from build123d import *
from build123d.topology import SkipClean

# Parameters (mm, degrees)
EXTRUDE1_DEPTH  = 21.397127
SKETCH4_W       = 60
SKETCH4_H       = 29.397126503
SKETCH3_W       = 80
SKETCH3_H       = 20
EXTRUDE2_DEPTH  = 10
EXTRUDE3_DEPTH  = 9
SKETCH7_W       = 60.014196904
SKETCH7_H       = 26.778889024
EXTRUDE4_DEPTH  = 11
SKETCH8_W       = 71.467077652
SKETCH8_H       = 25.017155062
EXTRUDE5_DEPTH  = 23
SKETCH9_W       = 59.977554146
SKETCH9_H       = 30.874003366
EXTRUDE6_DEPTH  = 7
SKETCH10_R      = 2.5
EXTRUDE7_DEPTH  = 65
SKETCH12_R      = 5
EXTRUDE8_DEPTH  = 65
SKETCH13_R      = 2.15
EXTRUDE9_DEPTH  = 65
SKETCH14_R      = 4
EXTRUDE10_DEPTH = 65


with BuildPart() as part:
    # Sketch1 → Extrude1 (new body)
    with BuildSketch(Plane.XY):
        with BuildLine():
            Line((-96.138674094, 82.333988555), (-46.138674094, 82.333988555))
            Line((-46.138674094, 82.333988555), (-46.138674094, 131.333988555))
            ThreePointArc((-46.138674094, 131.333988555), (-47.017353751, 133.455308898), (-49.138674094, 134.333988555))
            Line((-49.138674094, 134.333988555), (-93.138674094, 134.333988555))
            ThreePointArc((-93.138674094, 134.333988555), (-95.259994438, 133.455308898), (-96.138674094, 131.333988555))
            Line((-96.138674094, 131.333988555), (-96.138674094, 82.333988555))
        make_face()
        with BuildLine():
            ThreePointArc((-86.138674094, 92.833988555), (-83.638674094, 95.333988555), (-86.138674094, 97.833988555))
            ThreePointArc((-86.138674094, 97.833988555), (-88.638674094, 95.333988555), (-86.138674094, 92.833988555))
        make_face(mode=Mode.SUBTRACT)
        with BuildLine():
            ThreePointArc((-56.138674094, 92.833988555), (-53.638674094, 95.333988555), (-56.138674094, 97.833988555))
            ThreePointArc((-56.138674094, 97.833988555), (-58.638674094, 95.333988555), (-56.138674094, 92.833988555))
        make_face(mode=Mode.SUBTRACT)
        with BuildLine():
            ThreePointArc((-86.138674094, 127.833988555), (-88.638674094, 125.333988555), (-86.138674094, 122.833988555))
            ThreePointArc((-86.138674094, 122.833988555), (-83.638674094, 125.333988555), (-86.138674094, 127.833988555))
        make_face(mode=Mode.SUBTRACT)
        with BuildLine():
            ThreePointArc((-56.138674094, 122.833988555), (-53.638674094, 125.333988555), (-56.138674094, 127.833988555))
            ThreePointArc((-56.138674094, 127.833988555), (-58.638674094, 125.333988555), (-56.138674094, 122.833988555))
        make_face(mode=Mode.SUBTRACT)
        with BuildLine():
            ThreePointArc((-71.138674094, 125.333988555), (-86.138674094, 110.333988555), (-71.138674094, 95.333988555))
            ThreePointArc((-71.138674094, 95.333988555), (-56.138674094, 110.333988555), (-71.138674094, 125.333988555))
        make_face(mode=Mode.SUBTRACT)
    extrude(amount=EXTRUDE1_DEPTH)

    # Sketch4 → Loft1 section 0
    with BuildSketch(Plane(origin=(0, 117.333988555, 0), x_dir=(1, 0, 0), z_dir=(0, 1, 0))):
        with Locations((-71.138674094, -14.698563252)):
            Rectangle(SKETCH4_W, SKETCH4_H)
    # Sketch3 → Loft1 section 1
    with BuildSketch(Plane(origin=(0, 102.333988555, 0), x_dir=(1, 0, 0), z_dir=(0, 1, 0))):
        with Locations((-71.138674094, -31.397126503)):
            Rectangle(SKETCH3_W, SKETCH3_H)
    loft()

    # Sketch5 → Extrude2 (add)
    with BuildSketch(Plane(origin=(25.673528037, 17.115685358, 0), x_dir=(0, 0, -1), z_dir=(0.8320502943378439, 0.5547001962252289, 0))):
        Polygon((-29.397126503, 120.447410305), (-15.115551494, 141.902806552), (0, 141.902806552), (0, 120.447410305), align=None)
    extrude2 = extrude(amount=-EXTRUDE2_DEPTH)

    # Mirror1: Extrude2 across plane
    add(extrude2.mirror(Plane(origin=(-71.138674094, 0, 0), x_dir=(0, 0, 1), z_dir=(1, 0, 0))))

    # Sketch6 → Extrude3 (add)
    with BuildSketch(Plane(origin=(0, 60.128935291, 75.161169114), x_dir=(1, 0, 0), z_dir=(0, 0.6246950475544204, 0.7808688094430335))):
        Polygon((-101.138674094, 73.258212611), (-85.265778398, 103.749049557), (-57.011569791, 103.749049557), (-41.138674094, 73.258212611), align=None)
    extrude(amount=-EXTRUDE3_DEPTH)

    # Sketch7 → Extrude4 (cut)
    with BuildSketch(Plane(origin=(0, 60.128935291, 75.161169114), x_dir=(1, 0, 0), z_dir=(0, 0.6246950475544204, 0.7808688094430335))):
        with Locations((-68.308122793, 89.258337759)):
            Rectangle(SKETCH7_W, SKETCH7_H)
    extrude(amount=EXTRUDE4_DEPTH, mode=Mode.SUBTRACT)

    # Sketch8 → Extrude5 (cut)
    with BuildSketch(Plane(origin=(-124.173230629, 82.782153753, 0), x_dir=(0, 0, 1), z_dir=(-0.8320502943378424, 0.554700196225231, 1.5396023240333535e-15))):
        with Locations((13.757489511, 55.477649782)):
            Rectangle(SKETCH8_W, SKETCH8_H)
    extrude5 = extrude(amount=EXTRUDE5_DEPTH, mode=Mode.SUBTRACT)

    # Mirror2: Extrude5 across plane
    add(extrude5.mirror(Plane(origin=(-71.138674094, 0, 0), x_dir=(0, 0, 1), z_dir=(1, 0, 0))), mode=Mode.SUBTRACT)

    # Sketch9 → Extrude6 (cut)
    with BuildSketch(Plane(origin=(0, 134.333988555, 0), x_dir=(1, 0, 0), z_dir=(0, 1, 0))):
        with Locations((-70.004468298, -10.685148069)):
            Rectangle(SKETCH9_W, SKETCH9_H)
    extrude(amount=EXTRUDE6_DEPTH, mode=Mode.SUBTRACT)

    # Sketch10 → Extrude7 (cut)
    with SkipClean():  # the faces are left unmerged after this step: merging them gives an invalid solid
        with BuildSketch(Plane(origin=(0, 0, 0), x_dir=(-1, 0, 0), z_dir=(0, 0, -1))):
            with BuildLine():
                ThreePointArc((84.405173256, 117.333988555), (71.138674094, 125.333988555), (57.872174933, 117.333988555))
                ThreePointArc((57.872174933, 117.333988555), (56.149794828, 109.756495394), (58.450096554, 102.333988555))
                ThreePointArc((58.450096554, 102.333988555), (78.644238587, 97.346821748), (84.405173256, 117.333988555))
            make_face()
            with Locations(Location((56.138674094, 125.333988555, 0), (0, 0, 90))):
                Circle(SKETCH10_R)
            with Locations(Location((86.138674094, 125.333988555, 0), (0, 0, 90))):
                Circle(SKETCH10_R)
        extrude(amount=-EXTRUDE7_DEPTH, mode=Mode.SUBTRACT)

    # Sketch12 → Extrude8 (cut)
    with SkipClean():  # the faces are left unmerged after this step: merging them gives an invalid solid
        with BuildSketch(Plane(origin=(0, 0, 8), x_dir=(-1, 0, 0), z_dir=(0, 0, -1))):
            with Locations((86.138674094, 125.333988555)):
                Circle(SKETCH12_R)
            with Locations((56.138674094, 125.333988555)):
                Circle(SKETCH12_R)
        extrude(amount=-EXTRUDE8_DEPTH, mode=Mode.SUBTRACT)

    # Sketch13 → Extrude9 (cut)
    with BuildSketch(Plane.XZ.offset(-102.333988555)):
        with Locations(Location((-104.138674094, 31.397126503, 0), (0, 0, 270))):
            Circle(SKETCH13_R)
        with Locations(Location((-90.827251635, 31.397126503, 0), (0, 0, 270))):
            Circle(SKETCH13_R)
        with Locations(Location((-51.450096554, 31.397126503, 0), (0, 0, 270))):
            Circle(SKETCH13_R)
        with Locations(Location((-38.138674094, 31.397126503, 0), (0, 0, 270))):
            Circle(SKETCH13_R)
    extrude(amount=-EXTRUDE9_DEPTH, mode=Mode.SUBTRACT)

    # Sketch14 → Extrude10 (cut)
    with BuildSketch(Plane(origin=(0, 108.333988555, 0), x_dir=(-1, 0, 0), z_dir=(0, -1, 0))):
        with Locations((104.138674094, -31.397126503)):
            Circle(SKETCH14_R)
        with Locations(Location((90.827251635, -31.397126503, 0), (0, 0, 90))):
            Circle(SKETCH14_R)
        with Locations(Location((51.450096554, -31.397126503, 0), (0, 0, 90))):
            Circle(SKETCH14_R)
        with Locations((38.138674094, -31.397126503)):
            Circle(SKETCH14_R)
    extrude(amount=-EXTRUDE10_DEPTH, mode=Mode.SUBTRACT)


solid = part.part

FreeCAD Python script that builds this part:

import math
import FreeCAD as App
import Part
import Sketcher

V = App.Vector

doc = App.newDocument("Part")
body = doc.addObject("PartDesign::Body", "Body")

# Sketch on XY plane
sketch1 = body.newObject("Sketcher::SketchObject", "Sketch")
sketch1.AttachmentSupport = (doc.getObject("XY_Plane"), [""])
sketch1.MapMode = "FlatFace"
sketch1.addGeometry(Part.LineSegment(V(-96.1, 82.3, 0), V(-46.1, 82.3, 0)), False)
sketch1.addGeometry(Part.LineSegment(V(-46.1, 82.3, 0), V(-46.1, 131.3, 0)), False)
sketch1.addGeometry(Part.ArcOfCircle(Part.Circle(V(-49.1, 131.3, 0), V(0, 0, 1), 3), math.radians(0), math.radians(90)), False)
sketch1.addGeometry(Part.LineSegment(V(-49.1, 134.3, 0), V(-93.1, 134.3, 0)), False)
sketch1.addGeometry(Part.ArcOfCircle(Part.Circle(V(-93.1, 131.3, 0), V(0, 0, 1), 3), math.radians(90), math.radians(180)), False)
sketch1.addGeometry(Part.LineSegment(V(-96.1, 131.3, 0), V(-96.1, 82.3, 0)), False)
sketch1.addGeometry(Part.Circle(V(-86.1, 95.3, 0), V(0, 0, 1), 2.5), False)
sketch1.addGeometry(Part.Circle(V(-56.1, 95.3, 0), V(0, 0, 1), 2.5), False)
sketch1.addGeometry(Part.Circle(V(-86.1, 125.3, 0), V(0, 0, 1), 2.5), False)
sketch1.addGeometry(Part.Circle(V(-71.1, 110.3, 0), V(0, 0, 1), 15), False)
sketch1.addGeometry(Part.Circle(V(-56.1, 125.3, 0), V(0, 0, 1), 2.5), False)
sketch1.addConstraint(Sketcher.Constraint("Coincident", 0, 2, 1, 1))
sketch1.addConstraint(Sketcher.Constraint("Tangent", 1, 2, 2, 1))
sketch1.addConstraint(Sketcher.Constraint("Tangent", 2, 2, 3, 1))
sketch1.addConstraint(Sketcher.Constraint("Tangent", 3, 2, 4, 1))
sketch1.addConstraint(Sketcher.Constraint("Tangent", 4, 2, 5, 1))
sketch1.addConstraint(Sketcher.Constraint("Coincident", 5, 2, 0, 1))
sketch1.addConstraint(Sketcher.Constraint("Horizontal", 0))
sketch1.addConstraint(Sketcher.Constraint("Vertical", 1))
sketch1.addConstraint(Sketcher.Constraint("Horizontal", 3))
sketch1.addConstraint(Sketcher.Constraint("Vertical", 5))
sketch1.addConstraint(Sketcher.Constraint("Equal", 2, 4))
sketch1.addConstraint(Sketcher.Constraint("Equal", 6, 7))
sketch1.addConstraint(Sketcher.Constraint("Equal", 7, 8))
sketch1.addConstraint(Sketcher.Constraint("Equal", 8, 10))
sketch1.addConstraint(Sketcher.Constraint("Horizontal", 6, 3, 7, 3))
sketch1.addConstraint(Sketcher.Constraint("Horizontal", 8, 3, 10, 3))
sketch1.addConstraint(Sketcher.Constraint("Vertical", 6, 3, 8, 3))
sketch1.addConstraint(Sketcher.Constraint("Vertical", 7, 3, 10, 3))
sketch1.addConstraint(Sketcher.Constraint("Diameter", 6, 5.0))
sketch1.addConstraint(Sketcher.Constraint("Diameter", 9, 30.0))
sketch1.addConstraint(Sketcher.Constraint("Radius", 2, 3.0))
sketch1.addConstraint(Sketcher.Constraint("DistanceX", 0, 1, 0, 2, 50.0))
sketch1.addConstraint(Sketcher.Constraint("DistanceY", 1, 1, 1, 2, 49.0))
sketch1.addConstraint(Sketcher.Constraint("DistanceX", 4, 3, 6, 3, 7.0))
sketch1.addConstraint(Sketcher.Constraint("DistanceY", 6, 3, 4, 3, 36.0))
sketch1.addConstraint(Sketcher.Constraint("DistanceX", 6, 3, 7, 3, 30.0))
sketch1.addConstraint(Sketcher.Constraint("DistanceY", 8, 3, 4, 3, 6.0))
sketch1.addConstraint(Sketcher.Constraint("DistanceX", 9, 3, 7, 3, 15.0))
sketch1.addConstraint(Sketcher.Constraint("DistanceY", 7, 3, 9, 3, 15.0))
sketch1.addConstraint(Sketcher.Constraint("DistanceY", -1, 1, 2, 3, 131.333989))
sketch1.addConstraint(Sketcher.Constraint("DistanceX", 2, 3, -1, 1, 49.138674))
pad1 = body.newObject("PartDesign::Pad", "Pad")
pad1.Profile = sketch1
pad1.Length = 21.397127

# Sketch on XZ plane
sketch2 = body.newObject("Sketcher::SketchObject", "Sketch001")
sketch2.AttachmentSupport = (doc.getObject("XZ_Plane"), [""])
sketch2.MapMode = "FlatFace"
sketch2.AttachmentOffset = App.Placement(V(0, 0, -117.333989), App.Rotation())
sketch2.addGeometry(Part.LineSegment(V(-101, 0, 0), V(-101, 29, 0)), False)
sketch2.addGeometry(Part.LineSegment(V(-101, 29, 0), V(-41, 29, 0)), False)
sketch2.addGeometry(Part.LineSegment(V(-41, 29, 0), V(-41, 0, 0)), False)
sketch2.addGeometry(Part.LineSegment(V(-41, 0, 0), V(-101, 0, 0)), False)
sketch2.addConstraint(Sketcher.Constraint("Coincident", 0, 2, 1, 1))
sketch2.addConstraint(Sketcher.Constraint("Coincident", 1, 2, 2, 1))
sketch2.addConstraint(Sketcher.Constraint("Coincident", 2, 2, 3, 1))
sketch2.addConstraint(Sketcher.Constraint("Coincident", 3, 2, 0, 1))
sketch2.addConstraint(Sketcher.Constraint("Vertical", 0))
sketch2.addConstraint(Sketcher.Constraint("Horizontal", 1))
sketch2.addConstraint(Sketcher.Constraint("Vertical", 2))
sketch2.addConstraint(Sketcher.Constraint("Horizontal", 3))
sketch2.addConstraint(Sketcher.Constraint("PointOnObject", 2, 2, -1))
sketch2.addConstraint(Sketcher.Constraint("DistanceX", 1, 1, 1, 2, 60.0))
sketch2.addConstraint(Sketcher.Constraint("DistanceY", 0, 1, 0, 2, 29.397127))
sketch2.addConstraint(Sketcher.Constraint("DistanceX", 0, 2, -1, 1, 101.138674))

# Sketch on XZ plane
sketch3 = body.newObject("Sketcher::SketchObject", "Sketch002")
sketch3.AttachmentSupport = (doc.getObject("XZ_Plane"), [""])
sketch3.MapMode = "FlatFace"
sketch3.AttachmentOffset = App.Placement(V(0, 0, -102.333989), App.Rotation())
sketch3.addGeometry(Part.LineSegment(V(-111, 21, 0), V(-111, 41, 0)), False)
sketch3.addGeometry(Part.LineSegment(V(-111, 41, 0), V(-31, 41, 0)), False)
sketch3.addGeometry(Part.LineSegment(V(-31, 41, 0), V(-31, 21, 0)), False)
sketch3.addGeometry(Part.LineSegment(V(-31, 21, 0), V(-111, 21, 0)), False)
sketch3.addConstraint(Sketcher.Constraint("Coincident", 0, 2, 1, 1))
sketch3.addConstraint(Sketcher.Constraint("Coincident", 1, 2, 2, 1))
sketch3.addConstraint(Sketcher.Constraint("Coincident", 2, 2, 3, 1))
sketch3.addConstraint(Sketcher.Constraint("Coincident", 3, 2, 0, 1))
sketch3.addConstraint(Sketcher.Constraint("Vertical", 0))
sketch3.addConstraint(Sketcher.Constraint("Horizontal", 1))
sketch3.addConstraint(Sketcher.Constraint("Vertical", 2))
sketch3.addConstraint(Sketcher.Constraint("Horizontal", 3))
sketch3.addConstraint(Sketcher.Constraint("DistanceX", 1, 1, 1, 2, 80.0))
sketch3.addConstraint(Sketcher.Constraint("DistanceY", 0, 1, 0, 2, 20.0))
sketch3.addConstraint(Sketcher.Constraint("DistanceX", 0, 2, -1, 1, 111.138674))
sketch3.addConstraint(Sketcher.Constraint("DistanceY", -1, 1, 0, 2, 41.397127))

additiveloft = body.newObject("PartDesign::AdditiveLoft", "AdditiveLoft")
additiveloft.Profile = sketch2
additiveloft.Sections = [sketch3]

# Sketch on an angled plane
sketch4 = body.newObject("Sketcher::SketchObject", "Sketch003")
sketch4.Placement = App.Placement(V(25.673528, 17.115685, 0), App.Rotation(V(0, 0, -1), V(-0.554700196, 0.832050294, 0), V(0.832050294, 0.554700196, 0), "ZXY"))
sketch4.addGeometry(Part.LineSegment(V(-15, 142, 0), V(-29, 120, 0)), False)
sketch4.addGeometry(Part.LineSegment(V(-29, 120, 0), V(0, 120, 0)), False)
sketch4.addGeometry(Part.LineSegment(V(0, 120, 0), V(0, 142, 0)), False)
sketch4.addGeometry(Part.LineSegment(V(0, 142, 0), V(-15, 142, 0)), False)
sketch4.addConstraint(Sketcher.Constraint("Coincident", 0, 2, 1, 1))
sketch4.addConstraint(Sketcher.Constraint("Coincident", 1, 2, 2, 1))
sketch4.addConstraint(Sketcher.Constraint("Coincident", 2, 2, 3, 1))
sketch4.addConstraint(Sketcher.Constraint("Coincident", 3, 2, 0, 1))
sketch4.addConstraint(Sketcher.Constraint("Horizontal", 1))
sketch4.addConstraint(Sketcher.Constraint("Vertical", 2))
sketch4.addConstraint(Sketcher.Constraint("Horizontal", 3))
sketch4.addConstraint(Sketcher.Constraint("PointOnObject", 1, 2, -2))
sketch4.addConstraint(Sketcher.Constraint("DistanceX", 3, 2, 3, 1, 15.115551))
sketch4.addConstraint(Sketcher.Constraint("DistanceX", 1, 1, 1, 2, 29.397127))
sketch4.addConstraint(Sketcher.Constraint("DistanceY", 2, 1, 2, 2, 21.455396))
sketch4.addConstraint(Sketcher.Constraint("DistanceY", -1, 1, 0, 2, 120.44741))
pad2 = body.newObject("PartDesign::Pad", "Pad001")
pad2.Profile = sketch4
pad2.Length = 10
pad2.Reversed = True
doc.recompute()

datumplane = body.newObject("PartDesign::Plane", "DatumPlane")
datumplane.AttachmentSupport = (doc.getObject("YZ_Plane"), [""])
datumplane.MapMode = "FlatFace"
datumplane.AttachmentOffset = App.Placement(V(0, 0, -71.138674), App.Rotation())
mirrored = body.newObject("PartDesign::Mirrored", "Mirrored")
mirrored.Originals = [pad2]
mirrored.MirrorPlane = (datumplane, [""])
body.Tip = mirrored

# Sketch on an angled plane
sketch5 = body.newObject("Sketcher::SketchObject", "Sketch004")
sketch5.Placement = App.Placement(V(0, 60.128935, 75.161169), App.Rotation(V(1, 0, 0), V(0, 0.780868809, -0.624695048), V(0, 0.624695048, 0.780868809), "ZXY"))
sketch5.addGeometry(Part.LineSegment(V(-85, 104, 0), V(-101, 73, 0)), False)
sketch5.addGeometry(Part.LineSegment(V(-101, 73, 0), V(-41, 73, 0)), False)
sketch5.addGeometry(Part.LineSegment(V(-41, 73, 0), V(-57, 104, 0)), False)
sketch5.addGeometry(Part.LineSegment(V(-57, 104, 0), V(-85, 104, 0)), False)
sketch5.addConstraint(Sketcher.Constraint("Coincident", 0, 2, 1, 1))
sketch5.addConstraint(Sketcher.Constraint("Coincident", 1, 2, 2, 1))
sketch5.addConstraint(Sketcher.Constraint("Coincident", 2, 2, 3, 1))
sketch5.addConstraint(Sketcher.Constraint("Coincident", 3, 2, 0, 1))
sketch5.addConstraint(Sketcher.Constraint("Horizontal", 1))
sketch5.addConstraint(Sketcher.Constraint("Horizontal", 3))
sketch5.addConstraint(Sketcher.Constraint("Equal", 0, 2))
sketch5.addConstraint(Sketcher.Constraint("DistanceX", 1, 1, 1, 2, 60.0))
sketch5.addConstraint(Sketcher.Constraint("DistanceX", 3, 2, 3, 1, 28.254209))
sketch5.addConstraint(Sketcher.Constraint("Distance", 0, 34.37499))
sketch5.addConstraint(Sketcher.Constraint("DistanceX", 2, 2, -1, 1, 57.01157))
sketch5.addConstraint(Sketcher.Constraint("DistanceY", -1, 1, 2, 2, 103.74905))
pad3 = body.newObject("PartDesign::Pad", "Pad002")
pad3.Profile = sketch5
pad3.Length = 9
pad3.Reversed = True

# Sketch on an angled plane
sketch6 = body.newObject("Sketcher::SketchObject", "Sketch005")
sketch6.Placement = App.Placement(V(0, 60.128935, 75.161169), App.Rotation(V(1, 0, 0), V(0, 0.780868809, -0.624695048), V(0, 0.624695048, 0.780868809), "ZXY"))
sketch6.addGeometry(Part.LineSegment(V(-98, 103, 0), V(-98, 76, 0)), False)
sketch6.addGeometry(Part.LineSegment(V(-98, 76, 0), V(-38, 76, 0)), False)
sketch6.addGeometry(Part.LineSegment(V(-38, 76, 0), V(-38, 103, 0)), False)
sketch6.addGeometry(Part.LineSegment(V(-38, 103, 0), V(-98, 103, 0)), False)
sketch6.addConstraint(Sketcher.Constraint("Coincident", 0, 2, 1, 1))
sketch6.addConstraint(Sketcher.Constraint("Coincident", 1, 2, 2, 1))
sketch6.addConstraint(Sketcher.Constraint("Coincident", 2, 2, 3, 1))
sketch6.addConstraint(Sketcher.Constraint("Coincident", 3, 2, 0, 1))
sketch6.addConstraint(Sketcher.Constraint("Vertical", 0))
sketch6.addConstraint(Sketcher.Constraint("Horizontal", 1))
sketch6.addConstraint(Sketcher.Constraint("Vertical", 2))
sketch6.addConstraint(Sketcher.Constraint("Horizontal", 3))
sketch6.addConstraint(Sketcher.Constraint("DistanceY", 0, 2, 0, 1, 26.778889))
sketch6.addConstraint(Sketcher.Constraint("DistanceX", 1, 1, 1, 2, 60.014197))
sketch6.addConstraint(Sketcher.Constraint("DistanceX", 0, 2, -1, 1, 98.315221))
sketch6.addConstraint(Sketcher.Constraint("DistanceY", -1, 1, 0, 2, 75.868893))
pocket1 = body.newObject("PartDesign::Pocket", "Pocket")
pocket1.Profile = sketch6
pocket1.Length = 11
pocket1.Reversed = True

# Sketch on an angled plane
sketch7 = body.newObject("Sketcher::SketchObject", "Sketch006")
sketch7.Placement = App.Placement(V(-124.173231, 82.782154, 0), App.Rotation(V(0, 0, 1), V(0.554700196, 0.832050294, 0), V(-0.832050294, 0.554700196, 0), "ZXY"))
sketch7.addGeometry(Part.LineSegment(V(-22, 68, 0), V(-22, 43, 0)), False)
sketch7.addGeometry(Part.LineSegment(V(-22, 43, 0), V(49, 43, 0)), False)
sketch7.addGeometry(Part.LineSegment(V(49, 43, 0), V(49, 68, 0)), False)
sketch7.addGeometry(Part.LineSegment(V(49, 68, 0), V(-22, 68, 0)), False)
sketch7.addConstraint(Sketcher.Constraint("Coincident", 0, 2, 1, 1))
sketch7.addConstraint(Sketcher.Constraint("Coincident", 1, 2, 2, 1))
sketch7.addConstraint(Sketcher.Constraint("Coincident", 2, 2, 3, 1))
sketch7.addConstraint(Sketcher.Constraint("Coincident", 3, 2, 0, 1))
sketch7.addConstraint(Sketcher.Constraint("Vertical", 0))
sketch7.addConstraint(Sketcher.Constraint("Horizontal", 1))
sketch7.addConstraint(Sketcher.Constraint("Vertical", 2))
sketch7.addConstraint(Sketcher.Constraint("Horizontal", 3))
sketch7.addConstraint(Sketcher.Constraint("DistanceX", 1, 1, 1, 2, 71.467078))
sketch7.addConstraint(Sketcher.Constraint("DistanceY", 0, 2, 0, 1, 25.017155))
sketch7.addConstraint(Sketcher.Constraint("DistanceX", 0, 2, -1, 1, 21.976049))
sketch7.addConstraint(Sketcher.Constraint("DistanceY", -1, 1, 0, 2, 42.969072))
pocket2 = body.newObject("PartDesign::Pocket", "Pocket001")
pocket2.Profile = sketch7
pocket2.Length = 23
pocket2.Reversed = True
doc.recompute()

datumplane2 = body.newObject("PartDesign::Plane", "DatumPlane001")
datumplane2.AttachmentSupport = (doc.getObject("YZ_Plane"), [""])
datumplane2.MapMode = "FlatFace"
datumplane2.AttachmentOffset = App.Placement(V(0, 0, -71.138674), App.Rotation())
mirrored2 = body.newObject("PartDesign::Mirrored", "Mirrored001")
mirrored2.Originals = [pocket2]
mirrored2.MirrorPlane = (datumplane2, [""])
body.Tip = mirrored2

# Sketch on XZ plane
sketch8 = body.newObject("Sketcher::SketchObject", "Sketch007")
sketch8.AttachmentSupport = (doc.getObject("XZ_Plane"), [""])
sketch8.MapMode = "FlatFace"
sketch8.AttachmentOffset = App.Placement(V(0, 0, -134.333989), App.Rotation())
sketch8.addGeometry(Part.LineSegment(V(-100, -5, 0), V(-100, 26, 0)), False)
sketch8.addGeometry(Part.LineSegment(V(-100, 26, 0), V(-40, 26, 0)), False)
sketch8.addGeometry(Part.LineSegment(V(-40, 26, 0), V(-40, -5, 0)), False)
sketch8.addGeometry(Part.LineSegment(V(-40, -5, 0), V(-100, -5, 0)), False)
sketch8.addConstraint(Sketcher.Constraint("Coincident", 0, 2, 1, 1))
sketch8.addConstraint(Sketcher.Constraint("Coincident", 1, 2, 2, 1))
sketch8.addConstraint(Sketcher.Constraint("Coincident", 2, 2, 3, 1))
sketch8.addConstraint(Sketcher.Constraint("Coincident", 3, 2, 0, 1))
sketch8.addConstraint(Sketcher.Constraint("Vertical", 0))
sketch8.addConstraint(Sketcher.Constraint("Horizontal", 1))
sketch8.addConstraint(Sketcher.Constraint("Vertical", 2))
sketch8.addConstraint(Sketcher.Constraint("Horizontal", 3))
sketch8.addConstraint(Sketcher.Constraint("DistanceX", 1, 1, 1, 2, 59.977554))
sketch8.addConstraint(Sketcher.Constraint("DistanceY", 0, 1, 0, 2, 30.874003))
sketch8.addConstraint(Sketcher.Constraint("DistanceY", -1, 1, 0, 2, 26.12215))
sketch8.addConstraint(Sketcher.Constraint("DistanceX", 1, 2, -1, 1, 40.015691))
pocket3 = body.newObject("PartDesign::Pocket", "Pocket002")
pocket3.Profile = sketch8
pocket3.Length = 7

# Sketch on XY plane
sketch9 = body.newObject("Sketcher::SketchObject", "Sketch008")
sketch9.AttachmentSupport = (doc.getObject("XY_Plane"), [""])
sketch9.MapMode = "FlatFace"
sketch9.addGeometry(Part.ArcOfCircle(Part.Circle(V(-71.1, 110.3, 0), V(0, 0, 1), 15), math.radians(28), math.radians(152)), False)
sketch9.addGeometry(Part.ArcOfCircle(Part.Circle(V(-71.1, 110.3, 0), V(0, 0, 1), 15), math.radians(-32), math.radians(28)), False)
sketch9.addGeometry(Part.ArcOfCircle(Part.Circle(V(-71.1, 110.3, 0), V(0, 0, 1), 15), math.radians(152), math.radians(328)), False)
sketch9.addGeometry(Part.Circle(V(-56.1, 125.3, 0), V(0, 0, 1), 2.5), False)
sketch9.addGeometry(Part.Circle(V(-86.1, 125.3, 0), V(0, 0, 1), 2.5), False)
sketch9.addConstraint(Sketcher.Constraint("Tangent", 0, 1, 1, 2))
sketch9.addConstraint(Sketcher.Constraint("Tangent", 1, 1, 2, 2))
sketch9.addConstraint(Sketcher.Constraint("Tangent", 2, 1, 0, 2))
sketch9.addConstraint(Sketcher.Constraint("Equal", 3, 4))
sketch9.addConstraint(Sketcher.Constraint("Horizontal", 3, 3, 4, 3))
sketch9.addConstraint(Sketcher.Constraint("Horizontal", 0, 1, 2, 1))
sketch9.addConstraint(Sketcher.Constraint("Diameter", 3, 5.0))
sketch9.addConstraint(Sketcher.Constraint("Radius", 0, 15.0))
sketch9.addConstraint(Sketcher.Constraint("DistanceX", 1, 3, 3, 3, 15.0))
sketch9.addConstraint(Sketcher.Constraint("DistanceY", 1, 3, 3, 3, 15.0))
sketch9.addConstraint(Sketcher.Constraint("DistanceX", 4, 3, 0, 3, 15.0))
sketch9.addConstraint(Sketcher.Constraint("DistanceY", 0, 1, 3, 3, 8.0))
sketch9.addConstraint(Sketcher.Constraint("DistanceY", 1, 1, 1, 3, 8.0))
sketch9.addConstraint(Sketcher.Constraint("DistanceY", -1, 1, 0, 3, 110.333989))
sketch9.addConstraint(Sketcher.Constraint("DistanceX", 0, 3, -1, 1, 71.138674))
pocket4 = body.newObject("PartDesign::Pocket", "Pocket003")
pocket4.Profile = sketch9
pocket4.Length = 65
pocket4.Reversed = True

# Sketch on XY plane
sketch10 = body.newObject("Sketcher::SketchObject", "Sketch009")
sketch10.AttachmentSupport = (doc.getObject("XY_Plane"), [""])
sketch10.MapMode = "FlatFace"
sketch10.AttachmentOffset = App.Placement(V(0, 0, 8), App.Rotation())
sketch10.addGeometry(Part.Circle(V(-86, 125, 0), V(0, 0, 1), 5), False)
sketch10.addGeometry(Part.Circle(V(-56, 125, 0), V(0, 0, 1), 5), False)
sketch10.addConstraint(Sketcher.Constraint("Equal", 0, 1))
sketch10.addConstraint(Sketcher.Constraint("Horizontal", 0, 3, 1, 3))
sketch10.addConstraint(Sketcher.Constraint("Diameter", 0, 10.0))
sketch10.addConstraint(Sketcher.Constraint("DistanceX", 0, 3, 1, 3, 30.0))
sketch10.addConstraint(Sketcher.Constraint("DistanceY", -1, 1, 0, 3, 125.333989))
sketch10.addConstraint(Sketcher.Constraint("DistanceX", 0, 3, -1, 1, 86.138674))
pocket5 = body.newObject("PartDesign::Pocket", "Pocket004")
pocket5.Profile = sketch10
pocket5.Length = 65
pocket5.Reversed = True

# Sketch on XZ plane
sketch11 = body.newObject("Sketcher::SketchObject", "Sketch010")
sketch11.AttachmentSupport = (doc.getObject("XZ_Plane"), [""])
sketch11.MapMode = "FlatFace"
sketch11.AttachmentOffset = App.Placement(V(0, 0, -102.333989), App.Rotation())
sketch11.addGeometry(Part.Circle(V(-104.1, 31.4, 0), V(0, 0, 1), 2.1), False)
sketch11.addGeometry(Part.Circle(V(-90.8, 31.4, 0), V(0, 0, 1), 2.1), False)
sketch11.addGeometry(Part.Circle(V(-51.5, 31.4, 0), V(0, 0, 1), 2.1), False)
sketch11.addGeometry(Part.Circle(V(-38.1, 31.4, 0), V(0, 0, 1), 2.1), False)
sketch11.addConstraint(Sketcher.Constraint("Equal", 0, 1))
sketch11.addConstraint(Sketcher.Constraint("Equal", 1, 2))
sketch11.addConstraint(Sketcher.Constraint("Equal", 2, 3))
sketch11.addConstraint(Sketcher.Constraint("Horizontal", 0, 3, 1, 3))
sketch11.addConstraint(Sketcher.Constraint("Horizontal", 1, 3, 2, 3))
sketch11.addConstraint(Sketcher.Constraint("Horizontal", 2, 3, 3, 3))
sketch11.addConstraint(Sketcher.Constraint("Diameter", 0, 4.3))
sketch11.addConstraint(Sketcher.Constraint("DistanceX", 0, 3, 3, 3, 66.0))
sketch11.addConstraint(Sketcher.Constraint("DistanceX", 1, 3, -1, 1, 90.827252))
sketch11.addConstraint(Sketcher.Constraint("DistanceX", 0, 3, -1, 1, 104.138674))
sketch11.addConstraint(Sketcher.Constraint("DistanceY", -1, 1, 0, 3, 31.397127))
sketch11.addConstraint(Sketcher.Constraint("DistanceX", 2, 3, -1, 1, 51.450097))
pocket6 = body.newObject("PartDesign::Pocket", "Pocket005")
pocket6.Profile = sketch11
pocket6.Length = 65

# Sketch on XZ plane
sketch12 = body.newObject("Sketcher::SketchObject", "Sketch011")
sketch12.AttachmentSupport = (doc.getObject("XZ_Plane"), [""])
sketch12.MapMode = "FlatFace"
sketch12.AttachmentOffset = App.Placement(V(0, 0, -108.333989), App.Rotation())
sketch12.addGeometry(Part.Circle(V(-104.1, 31.4, 0), V(0, 0, 1), 4), False)
sketch12.addGeometry(Part.Circle(V(-90.8, 31.4, 0), V(0, 0, 1), 4), False)
sketch12.addGeometry(Part.Circle(V(-51.5, 31.4, 0), V(0, 0, 1), 4), False)
sketch12.addGeometry(Part.Circle(V(-38.1, 31.4, 0), V(0, 0, 1), 4), False)
sketch12.addConstraint(Sketcher.Constraint("Equal", 0, 1))
sketch12.addConstraint(Sketcher.Constraint("Equal", 1, 2))
sketch12.addConstraint(Sketcher.Constraint("Equal", 2, 3))
sketch12.addConstraint(Sketcher.Constraint("Horizontal", 0, 3, 1, 3))
sketch12.addConstraint(Sketcher.Constraint("Horizontal", 1, 3, 2, 3))
sketch12.addConstraint(Sketcher.Constraint("Horizontal", 2, 3, 3, 3))
sketch12.addConstraint(Sketcher.Constraint("Diameter", 0, 8.0))
sketch12.addConstraint(Sketcher.Constraint("DistanceX", 0, 3, 3, 3, 66.0))
sketch12.addConstraint(Sketcher.Constraint("DistanceX", 1, 3, -1, 1, 90.827252))
sketch12.addConstraint(Sketcher.Constraint("DistanceX", 0, 3, -1, 1, 104.138674))
sketch12.addConstraint(Sketcher.Constraint("DistanceY", -1, 1, 0, 3, 31.397127))
sketch12.addConstraint(Sketcher.Constraint("DistanceX", 2, 3, -1, 1, 51.450097))
pocket7 = body.newObject("PartDesign::Pocket", "Pocket006")
pocket7.Profile = sketch12
pocket7.Length = 65

doc.recompute()
